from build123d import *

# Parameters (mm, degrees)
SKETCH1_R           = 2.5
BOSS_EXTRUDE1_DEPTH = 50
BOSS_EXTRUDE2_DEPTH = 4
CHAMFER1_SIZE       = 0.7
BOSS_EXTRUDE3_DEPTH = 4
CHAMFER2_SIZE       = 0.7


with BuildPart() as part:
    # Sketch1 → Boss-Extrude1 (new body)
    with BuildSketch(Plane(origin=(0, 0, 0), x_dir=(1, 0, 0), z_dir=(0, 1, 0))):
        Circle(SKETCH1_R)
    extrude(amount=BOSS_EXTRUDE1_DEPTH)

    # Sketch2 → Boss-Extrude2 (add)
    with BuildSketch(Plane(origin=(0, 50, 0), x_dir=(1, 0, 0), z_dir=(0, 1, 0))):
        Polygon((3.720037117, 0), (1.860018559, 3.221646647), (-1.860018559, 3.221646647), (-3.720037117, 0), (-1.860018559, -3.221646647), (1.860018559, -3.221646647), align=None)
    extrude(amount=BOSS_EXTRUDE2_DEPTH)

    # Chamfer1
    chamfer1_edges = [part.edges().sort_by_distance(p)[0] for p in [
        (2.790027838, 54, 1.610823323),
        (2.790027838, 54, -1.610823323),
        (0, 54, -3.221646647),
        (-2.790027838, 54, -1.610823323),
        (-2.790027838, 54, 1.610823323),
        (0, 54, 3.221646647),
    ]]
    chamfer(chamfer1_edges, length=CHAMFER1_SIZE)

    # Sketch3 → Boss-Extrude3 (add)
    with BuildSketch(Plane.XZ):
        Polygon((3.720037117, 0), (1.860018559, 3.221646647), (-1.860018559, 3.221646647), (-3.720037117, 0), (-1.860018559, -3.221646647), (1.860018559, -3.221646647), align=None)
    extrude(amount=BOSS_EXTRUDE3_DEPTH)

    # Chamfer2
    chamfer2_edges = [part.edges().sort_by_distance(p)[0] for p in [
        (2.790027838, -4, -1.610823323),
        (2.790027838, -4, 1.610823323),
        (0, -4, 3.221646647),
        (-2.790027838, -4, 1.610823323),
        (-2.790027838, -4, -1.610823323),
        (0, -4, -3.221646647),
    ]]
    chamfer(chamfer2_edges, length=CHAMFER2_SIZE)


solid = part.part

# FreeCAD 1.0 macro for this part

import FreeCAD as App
import Part
import Sketcher
from FreeCAD import Vector
Q = App.Units.Quantity


def edges_at(feature, points):
    """Names of the edges that pass closest to the given points."""
    edges = feature.Shape.Edges
    near = lambda p: min(range(len(edges)), key=lambda i: edges[i].distToShape(Part.Vertex(*p))[0])
    return sorted({f"Edge{near(p) + 1}" for p in points})

doc = App.newDocument("Part")
body = doc.addObject("PartDesign::Body", "Body")

# Sketch on XZ plane
sketch1 = doc.addObject("Sketcher::SketchObject", "Sketch")
body.addObject(sketch1)
sketch1.AttachmentSupport = (doc.XZ_Plane, [""])
sketch1.MapMode = "FlatFace"
sketch1.addGeometry(Part.Circle(Vector(0, 0, 0), Vector(0, 0, 1), 2.5), False)
sketch1.addConstraint([
    Sketcher.Constraint("Coincident", 0, 3, -1, 1),
    Sketcher.Constraint("Diameter", 0, 5.0),
])
pad1 = doc.addObject("PartDesign::Pad", "Pad")
body.addObject(pad1)
pad1.Profile = sketch1
pad1.Length = 50
pad1.Reversed = True

# Sketch on XZ plane
sketch2 = doc.addObject("Sketcher::SketchObject", "Sketch001")
body.addObject(sketch2)
sketch2.AttachmentSupport = (doc.XZ_Plane, [""])
sketch2.MapMode = "FlatFace"
sketch2.AttachmentOffset = App.Placement(Vector(0, 0, -50), App.Rotation())
sketch2.addGeometry([
    Part.LineSegment(Vector(3.7, 0, 0), Vector(1.9, -3.2, 0)),  # 0
    Part.LineSegment(Vector(1.9, -3.2, 0), Vector(-1.9, -3.2, 0)),  # 1
    Part.LineSegment(Vector(-1.9, -3.2, 0), Vector(-3.7, 0, 0)),  # 2
    Part.LineSegment(Vector(-3.7, 0, 0), Vector(-1.9, 3.2, 0)),  # 3
    Part.LineSegment(Vector(-1.9, 3.2, 0), Vector(1.9, 3.2, 0)),  # 4
    Part.LineSegment(Vector(1.9, 3.2, 0), Vector(3.7, 0, 0)),  # 5
], False)
sketch2.addConstraint([
    Sketcher.Constraint("Coincident", 0, 2, 1, 1),
    Sketcher.Constraint("Coincident", 1, 2, 2, 1),
    Sketcher.Constraint("Coincident", 2, 2, 3, 1),
    Sketcher.Constraint("Coincident", 3, 2, 4, 1),
    Sketcher.Constraint("Coincident", 4, 2, 5, 1),
    Sketcher.Constraint("Coincident", 5, 2, 0, 1),
    Sketcher.Constraint("Horizontal", 1),
    Sketcher.Constraint("Horizontal", 4),
    Sketcher.Constraint("Symmetric", 0, 2, 3, 2, -1, 1),
    Sketcher.Constraint("Symmetric", 2, 2, 5, 2, -1, 1),
    Sketcher.Constraint("PointOnObject", 2, 2, -1),
    Sketcher.Constraint("Parallel", 2, 5),
    Sketcher.Constraint("Vertical", 1, 2, 3, 2),
    Sketcher.Constraint("Angle", 0, Q("-120 deg")),
    Sketcher.Constraint("DistanceX", 1, 2, 1, 1, 3.720037),
    Sketcher.Constraint("DistanceX", 2, 2, 1, 2, 1.860019),
])
pad2 = doc.addObject("PartDesign::Pad", "Pad001")
body.addObject(pad2)
pad2.Profile = sketch2
pad2.Length = 4
pad2.Reversed = True
doc.recompute()

chamfer = doc.addObject("PartDesign::Chamfer", "Chamfer")
body.addObject(chamfer)
chamfer.Base = (pad2, edges_at(pad2, [
    (2.79, 54, 1.611),
    (2.79, 54, -1.611),
    (0, 54, -3.222),
    (-2.79, 54, -1.611),
    (-2.79, 54, 1.611),
    (0, 54, 3.222),
]))
chamfer.Size = 0.7

# Sketch on XZ plane
sketch3 = doc.addObject("Sketcher::SketchObject", "Sketch002")
body.addObject(sketch3)
sketch3.AttachmentSupport = (doc.XZ_Plane, [""])
sketch3.MapMode = "FlatFace"
sketch3.addGeometry([
    Part.LineSegment(Vector(3.7, 0, 0), Vector(1.9, 3.2, 0)),  # 0
    Part.LineSegment(Vector(1.9, 3.2, 0), Vector(-1.9, 3.2, 0)),  # 1
    Part.LineSegment(Vector(-1.9, 3.2, 0), Vector(-3.7, 0, 0)),  # 2
    Part.LineSegment(Vector(-3.7, 0, 0), Vector(-1.9, -3.2, 0)),  # 3
    Part.LineSegment(Vector(-1.9, -3.2, 0), Vector(1.9, -3.2, 0)),  # 4
    Part.LineSegment(Vector(1.9, -3.2, 0), Vector(3.7, 0, 0)),  # 5
], False)
sketch3.addConstraint([
    Sketcher.Constraint("Coincident", 0, 2, 1, 1),
    Sketcher.Constraint("Coincident", 1, 2, 2, 1),
    Sketcher.Constraint("Coincident", 2, 2, 3, 1),
    Sketcher.Constraint("Coincident", 3, 2, 4, 1),
    Sketcher.Constraint("Coincident", 4, 2, 5, 1),
    Sketcher.Constraint("Coincident", 5, 2, 0, 1),
    Sketcher.Constraint("Horizontal", 1),
    Sketcher.Constraint("Horizontal", 4),
    Sketcher.Constraint("Symmetric", 0, 2, 3, 2, -1, 1),
    Sketcher.Constraint("Symmetric", 2, 2, 5, 2, -1, 1),
    Sketcher.Constraint("PointOnObject", 2, 2, -1),
    Sketcher.Constraint("Parallel", 2, 5),
    Sketcher.Constraint("Vertical", 1, 2, 3, 2),
    Sketcher.Constraint("Angle", 0, Q("120 deg")),
    Sketcher.Constraint("DistanceX", 1, 2, 1, 1, 3.720037),
    Sketcher.Constraint("DistanceX", 2, 2, 1, 2, 1.860019),
])
pad3 = doc.addObject("PartDesign::Pad", "Pad002")
body.addObject(pad3)
pad3.Profile = sketch3
pad3.Length = 4
doc.recompute()

chamfer2 = doc.addObject("PartDesign::Chamfer", "Chamfer001")
body.addObject(chamfer2)
chamfer2.Base = (pad3, edges_at(pad3, [
    (2.79, -4, -1.611),
    (2.79, -4, 1.611),
    (0, -4, 3.222),
    (-2.79, -4, 1.611),
    (-2.79, -4, -1.611),
    (0, -4, -3.222),
]))
chamfer2.Size = 0.7

doc.recompute()
